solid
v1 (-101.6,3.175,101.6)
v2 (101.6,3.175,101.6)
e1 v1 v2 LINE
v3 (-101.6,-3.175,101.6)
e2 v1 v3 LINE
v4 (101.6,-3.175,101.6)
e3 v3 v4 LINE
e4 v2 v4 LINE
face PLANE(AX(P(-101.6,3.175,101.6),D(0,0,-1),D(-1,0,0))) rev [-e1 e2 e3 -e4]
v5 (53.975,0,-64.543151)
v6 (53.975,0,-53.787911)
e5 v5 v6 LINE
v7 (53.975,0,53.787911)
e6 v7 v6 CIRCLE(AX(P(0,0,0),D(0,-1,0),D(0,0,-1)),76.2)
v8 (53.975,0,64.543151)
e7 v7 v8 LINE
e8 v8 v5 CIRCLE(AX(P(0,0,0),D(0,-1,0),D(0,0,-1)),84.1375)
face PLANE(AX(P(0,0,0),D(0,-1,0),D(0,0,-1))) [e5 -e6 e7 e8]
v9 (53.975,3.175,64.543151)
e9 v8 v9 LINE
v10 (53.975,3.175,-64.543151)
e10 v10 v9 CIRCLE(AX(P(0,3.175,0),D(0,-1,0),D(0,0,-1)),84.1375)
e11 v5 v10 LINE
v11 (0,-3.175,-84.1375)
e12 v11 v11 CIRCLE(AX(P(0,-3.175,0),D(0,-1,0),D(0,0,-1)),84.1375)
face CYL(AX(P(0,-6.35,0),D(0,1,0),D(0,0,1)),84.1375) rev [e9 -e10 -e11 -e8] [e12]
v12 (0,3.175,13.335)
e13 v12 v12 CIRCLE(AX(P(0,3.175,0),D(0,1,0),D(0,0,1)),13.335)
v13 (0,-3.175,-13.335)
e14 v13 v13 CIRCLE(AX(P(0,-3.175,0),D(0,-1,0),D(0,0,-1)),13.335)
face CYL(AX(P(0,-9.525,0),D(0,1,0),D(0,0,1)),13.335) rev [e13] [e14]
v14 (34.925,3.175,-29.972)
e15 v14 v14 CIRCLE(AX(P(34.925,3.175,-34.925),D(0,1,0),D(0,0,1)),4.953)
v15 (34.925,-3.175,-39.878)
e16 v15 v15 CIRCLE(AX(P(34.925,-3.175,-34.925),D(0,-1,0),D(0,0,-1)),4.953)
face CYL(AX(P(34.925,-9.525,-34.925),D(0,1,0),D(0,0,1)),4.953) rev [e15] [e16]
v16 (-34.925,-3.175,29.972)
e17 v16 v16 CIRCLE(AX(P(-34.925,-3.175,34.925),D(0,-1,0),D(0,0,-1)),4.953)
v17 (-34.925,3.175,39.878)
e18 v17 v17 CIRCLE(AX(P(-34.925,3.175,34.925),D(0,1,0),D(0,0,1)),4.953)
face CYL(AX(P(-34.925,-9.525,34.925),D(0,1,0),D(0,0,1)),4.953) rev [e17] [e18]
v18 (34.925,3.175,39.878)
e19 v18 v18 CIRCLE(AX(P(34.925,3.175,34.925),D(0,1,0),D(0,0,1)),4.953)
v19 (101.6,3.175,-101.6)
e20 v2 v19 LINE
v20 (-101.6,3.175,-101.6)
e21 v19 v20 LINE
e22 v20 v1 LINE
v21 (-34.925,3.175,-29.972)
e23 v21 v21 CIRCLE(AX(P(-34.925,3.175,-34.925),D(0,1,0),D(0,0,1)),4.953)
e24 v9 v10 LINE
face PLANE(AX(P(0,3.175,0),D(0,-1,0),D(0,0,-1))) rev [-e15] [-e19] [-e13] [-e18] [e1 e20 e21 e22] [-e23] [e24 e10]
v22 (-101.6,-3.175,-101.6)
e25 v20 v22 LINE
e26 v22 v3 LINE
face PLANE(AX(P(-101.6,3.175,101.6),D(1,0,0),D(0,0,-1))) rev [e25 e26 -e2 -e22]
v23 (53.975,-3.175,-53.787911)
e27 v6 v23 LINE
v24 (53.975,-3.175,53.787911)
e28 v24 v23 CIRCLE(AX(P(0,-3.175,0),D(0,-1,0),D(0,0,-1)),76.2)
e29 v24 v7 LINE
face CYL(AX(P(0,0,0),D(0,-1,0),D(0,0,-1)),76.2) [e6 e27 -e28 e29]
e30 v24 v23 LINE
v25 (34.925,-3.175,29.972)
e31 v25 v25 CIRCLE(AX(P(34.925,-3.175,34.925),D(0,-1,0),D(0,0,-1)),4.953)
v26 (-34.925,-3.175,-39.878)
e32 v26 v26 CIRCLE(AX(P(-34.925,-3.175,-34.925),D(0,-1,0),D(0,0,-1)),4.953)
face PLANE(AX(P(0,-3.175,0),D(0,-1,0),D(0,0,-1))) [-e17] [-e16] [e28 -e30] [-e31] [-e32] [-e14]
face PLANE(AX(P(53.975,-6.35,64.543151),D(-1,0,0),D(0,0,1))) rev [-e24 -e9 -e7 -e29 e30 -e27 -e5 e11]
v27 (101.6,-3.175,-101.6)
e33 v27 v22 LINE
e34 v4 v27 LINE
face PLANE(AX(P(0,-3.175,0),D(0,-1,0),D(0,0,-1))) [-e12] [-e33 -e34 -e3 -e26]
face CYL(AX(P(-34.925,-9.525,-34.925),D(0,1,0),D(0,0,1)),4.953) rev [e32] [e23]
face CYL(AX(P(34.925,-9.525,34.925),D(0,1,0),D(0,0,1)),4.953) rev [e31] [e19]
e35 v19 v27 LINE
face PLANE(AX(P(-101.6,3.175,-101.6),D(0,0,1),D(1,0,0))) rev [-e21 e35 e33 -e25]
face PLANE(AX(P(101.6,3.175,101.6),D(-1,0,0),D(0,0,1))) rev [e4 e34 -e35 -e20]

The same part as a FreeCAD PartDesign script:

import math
import FreeCAD as App
import Part
import Sketcher
from FreeCAD import Vector
Q = App.Units.Quantity


def add_polygon(sketch, points):
    """Adds a closed chain of lines whose ends are joined by coincident constraints."""
    first, n = sketch.GeometryCount, len(points)
    for a, b in zip(points, points[1:] + points[:1]):
        sketch.addGeometry(Part.LineSegment(App.Vector(*a, 0), App.Vector(*b, 0)), False)
    for i in range(n):
        sketch.addConstraint(Sketcher.Constraint("Coincident", first + i, 2, first + (i + 1) % n, 1))

doc = App.newDocument("Part")
body = doc.addObject("PartDesign::Body", "Body")

sketch1 = body.newObject("Sketcher::SketchObject", "Sketch")
sketch1.AttachmentSupport = (doc.getObject("XZ_Plane"), [""])
sketch1.MapMode = "FlatFace"
add_polygon(sketch1, [(-101.6, -101.6), (-101.6, 101.6), (101.6, 101.6), (101.6, -101.6)])
sketch1.addConstraint(Sketcher.Constraint("Vertical", 0))
sketch1.addConstraint(Sketcher.Constraint("Horizontal", 1))
sketch1.addConstraint(Sketcher.Constraint("Vertical", 2))
sketch1.addConstraint(Sketcher.Constraint("Horizontal", 3))
sketch1.addConstraint(Sketcher.Constraint("Symmetric", 0, 2, 2, 2, -1, 1))
sketch1.addConstraint(Sketcher.Constraint("Equal", 3, 0))
sketch1.addConstraint(Sketcher.Constraint("DistanceX", 1, 1, 1, 2, Q("8 in")))
pad1 = body.newObject("PartDesign::Pad", "Pad")
pad1.Profile = sketch1
pad1.Length = Q("0.25 in")
pad1.Midplane = True

sketch2 = body.newObject("Sketcher::SketchObject", "Sketch001")
sketch2.AttachmentSupport = (doc.getObject("XZ_Plane"), [""])
sketch2.MapMode = "FlatFace"
sketch2.addGeometry(Part.LineSegment(Vector(53.975, -64.543151, 0), Vector(53.975, 64.543151, 0)), False)
sketch2.addGeometry(Part.ArcOfCircle(Part.Circle(Vector(0, 0, 0), Vector(0, 0, 1), 84.1375), math.radians(-50.095534), math.radians(50.095534)), False)
sketch2.addConstraint(Sketcher.Constraint("Coincident", 0, 1, 1, 1))
sketch2.addConstraint(Sketcher.Constraint("Coincident", 1, 2, 0, 2))
sketch2.addConstraint(Sketcher.Constraint("Vertical", 0))
sketch2.addConstraint(Sketcher.Constraint("Coincident", 1, 3, -1, 1))
sketch2.addConstraint(Sketcher.Constraint("Radius", 1, Q("3.3125 in")))
sketch2.addConstraint(Sketcher.Constraint("DistanceX", -1, 1, 0, 1, Q("2.125 in")))
pocket1 = body.newObject("PartDesign::Pocket", "Pocket")
pocket1.Profile = sketch2
pocket1.Length = Q("0.5 in")
pocket1.Midplane = True

sketch3 = body.newObject("Sketcher::SketchObject", "Sketch002")
sketch3.AttachmentSupport = (doc.getObject("XZ_Plane"), [""])
sketch3.MapMode = "FlatFace"
sketch3.AttachmentOffset = App.Placement(Vector(0, 0, -0.125 * 25.4), App.Rotation())
sketch3.addGeometry(Part.Circle(Vector(-34.925, 34.925, 0), Vector(0, 0, 1), 4.953), False)
sketch3.addGeometry(Part.Circle(Vector(-34.925, -34.925, 0), Vector(0, 0, 1), 4.953), False)
sketch3.addGeometry(Part.Circle(Vector(34.925, -34.925, 0), Vector(0, 0, 1), 4.953), False)
sketch3.addGeometry(Part.Circle(Vector(34.925, 34.925, 0), Vector(0, 0, 1), 4.953), False)
sketch3.addGeometry(Part.Circle(Vector(0, 0, 0), Vector(0, 0, 1), 13.335), False)
sketch3.addConstraint(Sketcher.Constraint("Coincident", 4, 3, -1, 1))
sketch3.addConstraint(Sketcher.Constraint("Equal", 0, 1))
sketch3.addConstraint(Sketcher.Constraint("Equal", 1, 2))
sketch3.addConstraint(Sketcher.Constraint("Equal", 2, 3))
sketch3.addConstraint(Sketcher.Constraint("Symmetric", 0, 3, 2, 3, -1, 1))
sketch3.addConstraint(Sketcher.Constraint("Symmetric", 1, 3, 3, 3, -1, 1))
sketch3.addConstraint(Sketcher.Constraint("Symmetric", 1, 3, 2, 3, -2))
sketch3.addConstraint(Sketcher.Constraint("Diameter", 0, Q("0.39 in")))
sketch3.addConstraint(Sketcher.Constraint("Diameter", 4, Q("1.05 in")))
sketch3.addConstraint(Sketcher.Constraint("DistanceY", 1, 3, 0, 3, Q("2.75 in")))
sketch3.addConstraint(Sketcher.Constraint("DistanceX", 1, 3, 2, 3, Q("2.75 in")))
pocket2 = body.newObject("PartDesign::Pocket", "Pocket001")
pocket2.Profile = sketch3
pocket2.Length = Q("0.5 in")
pocket2.Reversed = True

sketch4 = body.newObject("Sketcher::SketchObject", "Sketch003")
sketch4.AttachmentSupport = (doc.getObject("XZ_Plane"), [""])
sketch4.MapMode = "FlatFace"
sketch4.addGeometry(Part.Circle(Vector(0, 0, 0), Vector(0, 0, 1), 84.1375), False)
sketch4.addGeometry(Part.Circle(Vector(0, 0, 0), Vector(0, 0, 1), 76.2), False)
sketch4.addConstraint(Sketcher.Constraint("Coincident", 0, 3, -1, 1))
sketch4.addConstraint(Sketcher.Constraint("Coincident", 1, 3, -1, 1))
sketch4.addConstraint(Sketcher.Constraint("Diameter", 1, Q("6 in")))
sketch4.addConstraint(Sketcher.Constraint("Diameter", 0, Q("6.625 in")))
pocket3 = body.newObject("PartDesign::Pocket", "Pocket002")
pocket3.Profile = sketch4
pocket3.Length = Q("0.125 in")
pocket3.Reversed = True

doc.recompute()
